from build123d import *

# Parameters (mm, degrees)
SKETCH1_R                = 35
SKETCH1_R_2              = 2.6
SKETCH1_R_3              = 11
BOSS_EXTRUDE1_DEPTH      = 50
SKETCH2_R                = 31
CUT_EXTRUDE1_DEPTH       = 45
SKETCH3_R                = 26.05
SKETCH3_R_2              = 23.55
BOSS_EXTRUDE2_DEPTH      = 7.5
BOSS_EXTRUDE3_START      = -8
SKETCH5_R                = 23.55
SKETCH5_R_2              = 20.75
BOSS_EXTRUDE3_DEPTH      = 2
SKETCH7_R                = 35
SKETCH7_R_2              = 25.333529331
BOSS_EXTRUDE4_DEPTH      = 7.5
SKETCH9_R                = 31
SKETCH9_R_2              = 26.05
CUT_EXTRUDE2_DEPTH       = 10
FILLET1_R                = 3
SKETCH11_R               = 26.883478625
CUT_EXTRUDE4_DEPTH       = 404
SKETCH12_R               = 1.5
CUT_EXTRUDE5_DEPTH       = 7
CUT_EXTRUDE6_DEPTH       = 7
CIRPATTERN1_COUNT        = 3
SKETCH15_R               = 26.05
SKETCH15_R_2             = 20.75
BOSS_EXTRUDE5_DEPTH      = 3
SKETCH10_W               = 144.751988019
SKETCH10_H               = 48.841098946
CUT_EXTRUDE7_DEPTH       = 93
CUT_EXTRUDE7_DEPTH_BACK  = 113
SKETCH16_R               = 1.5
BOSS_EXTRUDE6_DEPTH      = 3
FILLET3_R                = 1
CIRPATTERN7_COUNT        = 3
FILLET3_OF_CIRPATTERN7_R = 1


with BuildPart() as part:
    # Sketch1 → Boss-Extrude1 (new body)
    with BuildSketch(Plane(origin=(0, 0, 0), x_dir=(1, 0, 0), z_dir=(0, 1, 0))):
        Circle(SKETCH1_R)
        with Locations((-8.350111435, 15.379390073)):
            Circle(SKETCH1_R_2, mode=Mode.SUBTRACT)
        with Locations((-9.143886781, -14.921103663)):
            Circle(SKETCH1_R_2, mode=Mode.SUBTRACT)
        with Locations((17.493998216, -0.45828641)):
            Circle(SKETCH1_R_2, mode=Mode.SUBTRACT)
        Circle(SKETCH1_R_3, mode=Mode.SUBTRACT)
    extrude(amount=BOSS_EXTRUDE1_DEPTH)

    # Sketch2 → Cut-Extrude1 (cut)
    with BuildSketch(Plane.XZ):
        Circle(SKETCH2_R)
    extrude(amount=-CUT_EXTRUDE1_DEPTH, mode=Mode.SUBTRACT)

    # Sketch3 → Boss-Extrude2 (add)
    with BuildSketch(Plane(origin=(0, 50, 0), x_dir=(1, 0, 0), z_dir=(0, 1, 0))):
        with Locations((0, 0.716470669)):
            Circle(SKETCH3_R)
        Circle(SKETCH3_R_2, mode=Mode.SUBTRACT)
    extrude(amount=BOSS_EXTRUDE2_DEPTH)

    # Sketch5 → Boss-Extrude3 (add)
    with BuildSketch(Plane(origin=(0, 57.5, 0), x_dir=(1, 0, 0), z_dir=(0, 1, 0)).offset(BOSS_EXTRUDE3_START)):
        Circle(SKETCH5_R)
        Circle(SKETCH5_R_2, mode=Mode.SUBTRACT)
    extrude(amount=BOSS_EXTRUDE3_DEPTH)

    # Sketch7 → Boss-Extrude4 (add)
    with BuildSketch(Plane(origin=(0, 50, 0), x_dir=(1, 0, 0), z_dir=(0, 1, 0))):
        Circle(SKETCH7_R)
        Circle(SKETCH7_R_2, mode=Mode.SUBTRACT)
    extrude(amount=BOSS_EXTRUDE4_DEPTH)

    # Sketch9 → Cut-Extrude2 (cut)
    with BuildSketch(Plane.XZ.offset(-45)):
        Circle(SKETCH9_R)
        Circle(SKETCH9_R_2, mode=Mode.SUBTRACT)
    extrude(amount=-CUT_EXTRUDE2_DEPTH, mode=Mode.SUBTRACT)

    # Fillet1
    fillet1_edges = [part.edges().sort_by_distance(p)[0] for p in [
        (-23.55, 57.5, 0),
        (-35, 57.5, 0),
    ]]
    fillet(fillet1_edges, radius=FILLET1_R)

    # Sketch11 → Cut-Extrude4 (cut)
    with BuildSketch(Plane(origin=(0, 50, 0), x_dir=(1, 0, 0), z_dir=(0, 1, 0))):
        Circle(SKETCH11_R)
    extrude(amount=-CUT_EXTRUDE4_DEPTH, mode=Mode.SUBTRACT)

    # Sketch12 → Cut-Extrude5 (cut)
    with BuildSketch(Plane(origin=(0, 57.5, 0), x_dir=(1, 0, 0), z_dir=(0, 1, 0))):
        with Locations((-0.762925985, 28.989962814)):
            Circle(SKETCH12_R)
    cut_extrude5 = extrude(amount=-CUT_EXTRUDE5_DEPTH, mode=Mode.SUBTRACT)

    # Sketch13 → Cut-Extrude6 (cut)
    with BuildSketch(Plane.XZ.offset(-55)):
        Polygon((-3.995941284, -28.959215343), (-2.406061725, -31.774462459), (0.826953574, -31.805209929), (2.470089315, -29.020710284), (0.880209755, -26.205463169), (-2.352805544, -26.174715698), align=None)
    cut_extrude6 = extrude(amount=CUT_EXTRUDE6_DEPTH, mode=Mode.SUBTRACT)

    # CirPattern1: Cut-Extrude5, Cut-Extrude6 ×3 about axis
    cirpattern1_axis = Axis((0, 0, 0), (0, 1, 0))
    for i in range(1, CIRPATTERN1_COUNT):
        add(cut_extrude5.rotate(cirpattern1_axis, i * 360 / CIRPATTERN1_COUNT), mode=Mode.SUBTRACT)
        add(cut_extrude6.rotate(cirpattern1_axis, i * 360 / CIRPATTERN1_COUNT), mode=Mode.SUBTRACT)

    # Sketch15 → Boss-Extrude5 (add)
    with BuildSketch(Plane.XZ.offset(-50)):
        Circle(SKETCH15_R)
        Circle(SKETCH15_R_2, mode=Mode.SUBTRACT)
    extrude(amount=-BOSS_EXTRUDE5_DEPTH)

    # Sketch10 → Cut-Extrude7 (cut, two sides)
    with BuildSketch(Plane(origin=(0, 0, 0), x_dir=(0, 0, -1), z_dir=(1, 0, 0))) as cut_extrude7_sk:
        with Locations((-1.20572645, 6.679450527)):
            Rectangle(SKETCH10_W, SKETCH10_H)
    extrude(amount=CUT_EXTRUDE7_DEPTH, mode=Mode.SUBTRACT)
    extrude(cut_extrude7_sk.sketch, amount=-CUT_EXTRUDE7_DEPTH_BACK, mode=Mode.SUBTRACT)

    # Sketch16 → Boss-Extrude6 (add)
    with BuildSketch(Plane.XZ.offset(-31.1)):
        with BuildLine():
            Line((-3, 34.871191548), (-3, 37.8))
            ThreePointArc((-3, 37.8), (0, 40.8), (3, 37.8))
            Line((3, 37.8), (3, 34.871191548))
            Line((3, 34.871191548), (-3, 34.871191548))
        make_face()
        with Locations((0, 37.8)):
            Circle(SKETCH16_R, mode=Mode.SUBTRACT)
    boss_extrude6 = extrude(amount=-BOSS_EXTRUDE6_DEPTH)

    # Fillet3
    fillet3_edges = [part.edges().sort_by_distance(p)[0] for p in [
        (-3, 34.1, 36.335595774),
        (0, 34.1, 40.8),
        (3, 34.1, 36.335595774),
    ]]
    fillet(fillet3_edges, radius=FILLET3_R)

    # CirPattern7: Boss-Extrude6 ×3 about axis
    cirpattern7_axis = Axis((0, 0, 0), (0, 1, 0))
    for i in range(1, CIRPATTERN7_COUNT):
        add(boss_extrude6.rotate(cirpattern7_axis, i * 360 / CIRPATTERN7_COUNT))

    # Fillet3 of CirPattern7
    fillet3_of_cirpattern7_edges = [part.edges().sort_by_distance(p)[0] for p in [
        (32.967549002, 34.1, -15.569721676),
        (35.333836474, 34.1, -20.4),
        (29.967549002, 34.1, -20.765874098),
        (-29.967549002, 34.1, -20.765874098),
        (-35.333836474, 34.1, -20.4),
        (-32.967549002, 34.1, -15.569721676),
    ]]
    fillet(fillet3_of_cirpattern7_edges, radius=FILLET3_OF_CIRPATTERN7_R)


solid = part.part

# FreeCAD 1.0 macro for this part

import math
import FreeCAD as App
import Part
import Sketcher
Q = App.Units.Quantity


def edges_at(feature, points):
    """Names of the edges that pass closest to the given points."""
    edges = feature.Shape.Edges
    near = lambda p: min(range(len(edges)), key=lambda i: edges[i].distToShape(Part.Vertex(*p))[0])
    return sorted({f"Edge{near(p) + 1}" for p in points})

doc = App.newDocument("Part")
body = doc.addObject("PartDesign::Body", "Body")

sketch1 = doc.addObject("Sketcher::SketchObject", "Sketch")
body.addObject(sketch1)
sketch1.AttachmentSupport = (doc.XZ_Plane, [""])
sketch1.MapMode = "FlatFace"
sketch1.addGeometry(Part.Circle(App.Vector(0, 0, 0), App.Vector(0, 0, 1), 35), False)
sketch1.addGeometry(Part.Circle(App.Vector(-9.1, 14.9, 0), App.Vector(0, 0, 1), 2.6), False)
sketch1.addGeometry(Part.Circle(App.Vector(0, 0, 0), App.Vector(0, 0, 1), 11), False)
sketch1.addGeometry(Part.Circle(App.Vector(17.5, 0.5, 0), App.Vector(0, 0, 1), 2.6), False)
sketch1.addGeometry(Part.Circle(App.Vector(-8.4, -15.4, 0), App.Vector(0, 0, 1), 2.6), False)
sketch1.addConstraint(Sketcher.Constraint("Coincident", 0, 3, -1, 1))
sketch1.addConstraint(Sketcher.Constraint("Coincident", 2, 3, -1, 1))
sketch1.addConstraint(Sketcher.Constraint("Equal", 1, 3))
sketch1.addConstraint(Sketcher.Constraint("Equal", 3, 4))
sketch1.addConstraint(Sketcher.Constraint("Diameter", 0, Q("70 mm")))
sketch1.addConstraint(Sketcher.Constraint("Diameter", 2, Q("22 mm")))
sketch1.addConstraint(Sketcher.Constraint("Diameter", 1, Q("5.2 mm")))
sketch1.addConstraint(Sketcher.Constraint("DistanceX", -1, 1, 3, 3, Q("17.493998 mm")))
sketch1.addConstraint(Sketcher.Constraint("DistanceX", 4, 3, -1, 1, Q("8.350111 mm")))
sketch1.addConstraint(Sketcher.Constraint("DistanceY", 4, 3, -1, 1, Q("15.37939 mm")))
sketch1.addConstraint(Sketcher.Constraint("DistanceX", 1, 3, -1, 1, Q("9.143887 mm")))
sketch1.addConstraint(Sketcher.Constraint("DistanceY", -1, 1, 1, 3, Q("14.921104 mm")))
sketch1.addConstraint(Sketcher.Constraint("DistanceY", -1, 1, 3, 3, Q("0.458286 mm")))
pad1 = doc.addObject("PartDesign::Pad", "Pad")
body.addObject(pad1)
pad1.Profile = sketch1
pad1.Length = 50
pad1.Reversed = True

sketch2 = doc.addObject("Sketcher::SketchObject", "Sketch001")
body.addObject(sketch2)
sketch2.AttachmentSupport = (doc.XZ_Plane, [""])
sketch2.MapMode = "FlatFace"
sketch2.addGeometry(Part.Circle(App.Vector(0, 0, 0), App.Vector(0, 0, 1), 31), False)
sketch2.addConstraint(Sketcher.Constraint("Coincident", 0, 3, -1, 1))
sketch2.addConstraint(Sketcher.Constraint("Diameter", 0, Q("62 mm")))
pocket1 = doc.addObject("PartDesign::Pocket", "Pocket")
body.addObject(pocket1)
pocket1.Profile = sketch2
pocket1.Length = 45

sketch3 = doc.addObject("Sketcher::SketchObject", "Sketch002")
body.addObject(sketch3)
sketch3.AttachmentSupport = (doc.XZ_Plane, [""])
sketch3.MapMode = "FlatFace"
sketch3.AttachmentOffset = App.Placement(App.Vector(0, 0, -50), App.Rotation())
sketch3.addGeometry(Part.Circle(App.Vector(0, -1, 0), App.Vector(0, 0, 1), 26), False)
sketch3.addGeometry(Part.Circle(App.Vector(0, 0, 0), App.Vector(0, 0, 1), 24), False)
sketch3.addConstraint(Sketcher.Constraint("Coincident", 1, 3, -1, 1))
sketch3.addConstraint(Sketcher.Constraint("PointOnObject", 0, 3, -2))
sketch3.addConstraint(Sketcher.Constraint("Diameter", 0, Q("52.1 mm")))
sketch3.addConstraint(Sketcher.Constraint("Diameter", 1, Q("47.1 mm")))
sketch3.addConstraint(Sketcher.Constraint("DistanceY", 0, 3, -1, 1, Q("0.716471 mm")))
pad2 = doc.addObject("PartDesign::Pad", "Pad001")
body.addObject(pad2)
pad2.Profile = sketch3
pad2.Length = 7.5
pad2.Reversed = True

sketch4 = doc.addObject("Sketcher::SketchObject", "Sketch003")
body.addObject(sketch4)
sketch4.AttachmentSupport = (doc.XZ_Plane, [""])
sketch4.MapMode = "FlatFace"
sketch4.AttachmentOffset = App.Placement(App.Vector(0, 0, -49.5), App.Rotation())
sketch4.addGeometry(Part.Circle(App.Vector(0, 0, 0), App.Vector(0, 0, 1), 24), False)
sketch4.addGeometry(Part.Circle(App.Vector(0, 0, 0), App.Vector(0, 0, 1), 21), False)
sketch4.addConstraint(Sketcher.Constraint("Coincident", 0, 3, -1, 1))
sketch4.addConstraint(Sketcher.Constraint("Coincident", 1, 3, -1, 1))
sketch4.addConstraint(Sketcher.Constraint("Diameter", 0, Q("47.1 mm")))
sketch4.addConstraint(Sketcher.Constraint("Diameter", 1, Q("41.5 mm")))
pad3 = doc.addObject("PartDesign::Pad", "Pad002")
body.addObject(pad3)
pad3.Profile = sketch4
pad3.Length = 2
pad3.Reversed = True

sketch5 = doc.addObject("Sketcher::SketchObject", "Sketch004")
body.addObject(sketch5)
sketch5.AttachmentSupport = (doc.XZ_Plane, [""])
sketch5.MapMode = "FlatFace"
sketch5.AttachmentOffset = App.Placement(App.Vector(0, 0, -50), App.Rotation())
sketch5.addGeometry(Part.Circle(App.Vector(0, 0, 0), App.Vector(0, 0, 1), 35), False)
sketch5.addGeometry(Part.Circle(App.Vector(0, 0, 0), App.Vector(0, 0, 1), 25), False)
sketch5.addConstraint(Sketcher.Constraint("Coincident", 0, 3, -1, 1))
sketch5.addConstraint(Sketcher.Constraint("Coincident", 1, 3, -1, 1))
sketch5.addConstraint(Sketcher.Constraint("Diameter", 0, Q("70 mm")))
sketch5.addConstraint(Sketcher.Constraint("Diameter", 1, Q("50.667059 mm")))
pad4 = doc.addObject("PartDesign::Pad", "Pad003")
body.addObject(pad4)
pad4.Profile = sketch5
pad4.Length = 7.5
pad4.Reversed = True

sketch6 = doc.addObject("Sketcher::SketchObject", "Sketch005")
body.addObject(sketch6)
sketch6.AttachmentSupport = (doc.XZ_Plane, [""])
sketch6.MapMode = "FlatFace"
sketch6.AttachmentOffset = App.Placement(App.Vector(0, 0, -45), App.Rotation())
sketch6.addGeometry(Part.Circle(App.Vector(0, 0, 0), App.Vector(0, 0, 1), 31), False)
sketch6.addGeometry(Part.Circle(App.Vector(0, 0, 0), App.Vector(0, 0, 1), 26), False)
sketch6.addConstraint(Sketcher.Constraint("Coincident", 0, 3, -1, 1))
sketch6.addConstraint(Sketcher.Constraint("Coincident", 1, 3, -1, 1))
sketch6.addConstraint(Sketcher.Constraint("Diameter", 0, Q("62 mm")))
sketch6.addConstraint(Sketcher.Constraint("Diameter", 1, Q("52.1 mm")))
pocket2 = doc.addObject("PartDesign::Pocket", "Pocket001")
body.addObject(pocket2)
pocket2.Profile = sketch6
pocket2.Length = 10
doc.recompute()

fillet = doc.addObject("PartDesign::Fillet", "Fillet")
body.addObject(fillet)
fillet.Base = (pocket2, edges_at(pocket2, [(-23.55, 57.5, 0), (-35, 57.5, 0)]))
fillet.Radius = 3

sketch7 = doc.addObject("Sketcher::SketchObject", "Sketch006")
body.addObject(sketch7)
sketch7.AttachmentSupport = (doc.XZ_Plane, [""])
sketch7.MapMode = "FlatFace"
sketch7.AttachmentOffset = App.Placement(App.Vector(0, 0, -50), App.Rotation())
sketch7.addGeometry(Part.Circle(App.Vector(0, 0, 0), App.Vector(0, 0, 1), 27), False)
sketch7.addConstraint(Sketcher.Constraint("Coincident", 0, 3, -1, 1))
sketch7.addConstraint(Sketcher.Constraint("Diameter", 0, Q("53.766957 mm")))
pocket3 = doc.addObject("PartDesign::Pocket", "Pocket002")
body.addObject(pocket3)
pocket3.Profile = sketch7
pocket3.Length = 404
pocket3.Reversed = True

sketch8 = doc.addObject("Sketcher::SketchObject", "Sketch007")
body.addObject(sketch8)
sketch8.AttachmentSupport = (doc.XZ_Plane, [""])
sketch8.MapMode = "FlatFace"
sketch8.AttachmentOffset = App.Placement(App.Vector(0, 0, -57.5), App.Rotation())
sketch8.addGeometry(Part.Circle(App.Vector(-0.8, -29, 0), App.Vector(0, 0, 1), 1.5), False)
sketch8.addConstraint(Sketcher.Constraint("Diameter", 0, Q("3 mm")))
sketch8.addConstraint(Sketcher.Constraint("DistanceX", 0, 3, -1, 1, Q("0.762926 mm")))
sketch8.addConstraint(Sketcher.Constraint("DistanceY", 0, 3, -1, 1, Q("28.989963 mm")))
pocket4 = doc.addObject("PartDesign::Pocket", "Pocket003")
body.addObject(pocket4)
pocket4.Profile = sketch8
pocket4.Length = 7
pocket4.Reversed = True

sketch9 = doc.addObject("Sketcher::SketchObject", "Sketch008")
body.addObject(sketch9)
sketch9.AttachmentSupport = (doc.XZ_Plane, [""])
sketch9.MapMode = "FlatFace"
sketch9.AttachmentOffset = App.Placement(App.Vector(0, 0, -55), App.Rotation())
sketch9.addGeometry(Part.LineSegment(App.Vector(-4, -29, 0), App.Vector(-2.4, -31.8, 0)), False)
sketch9.addGeometry(Part.LineSegment(App.Vector(-2.4, -31.8, 0), App.Vector(0.8, -31.8, 0)), False)
sketch9.addGeometry(Part.LineSegment(App.Vector(0.8, -31.8, 0), App.Vector(2.5, -29, 0)), False)
sketch9.addGeometry(Part.LineSegment(App.Vector(2.5, -29, 0), App.Vector(0.9, -26.2, 0)), False)
sketch9.addGeometry(Part.LineSegment(App.Vector(0.9, -26.2, 0), App.Vector(-2.4, -26.2, 0)), False)
sketch9.addGeometry(Part.LineSegment(App.Vector(-2.4, -26.2, 0), App.Vector(-4, -29, 0)), False)
sketch9.addConstraint(Sketcher.Constraint("Coincident", 0, 2, 1, 1))
sketch9.addConstraint(Sketcher.Constraint("Coincident", 1, 2, 2, 1))
sketch9.addConstraint(Sketcher.Constraint("Coincident", 2, 2, 3, 1))
sketch9.addConstraint(Sketcher.Constraint("Coincident", 3, 2, 4, 1))
sketch9.addConstraint(Sketcher.Constraint("Coincident", 4, 2, 5, 1))
sketch9.addConstraint(Sketcher.Constraint("Coincident", 5, 2, 0, 1))
sketch9.addConstraint(Sketcher.Constraint("Parallel", 0, 3))
sketch9.addConstraint(Sketcher.Constraint("Parallel", 1, 4))
sketch9.addConstraint(Sketcher.Constraint("Parallel", 2, 5))
sketch9.addConstraint(Sketcher.Constraint("Equal", 0, 1))
sketch9.addConstraint(Sketcher.Constraint("Equal", 1, 2))
sketch9.addConstraint(Sketcher.Constraint("Equal", 2, 3))
sketch9.addConstraint(Sketcher.Constraint("DistanceY", 0, 2, 3, 2, Q("5.568999 mm")))
sketch9.addConstraint(Sketcher.Constraint("DistanceY", 1, 2, 2, 2, Q("2.7845 mm")))
sketch9.addConstraint(Sketcher.Constraint("Distance", 0, Q("3.233162 mm")))
sketch9.addConstraint(Sketcher.Constraint("DistanceX", 0, 2, -1, 1, Q("2.406062 mm")))
sketch9.addConstraint(Sketcher.Constraint("DistanceY", 1, 2, -1, 1, Q("31.80521 mm")))
sketch9.addConstraint(Sketcher.Constraint("DistanceX", -1, 1, 3, 2, Q("0.88021 mm")))
pocket5 = doc.addObject("PartDesign::Pocket", "Pocket004")
body.addObject(pocket5)
pocket5.Profile = sketch9
pocket5.Length = 7
pocket5.Reversed = True
doc.recompute()

polarpattern = doc.addObject("PartDesign::PolarPattern", "PolarPattern")
body.addObject(polarpattern)
polarpattern.Originals = [pocket4, pocket5]
polarpattern.Axis = (doc.Y_Axis, [""])
polarpattern.Angle = 360
polarpattern.Occurrences = 3
body.Tip = polarpattern

sketch10 = doc.addObject("Sketcher::SketchObject", "Sketch009")
body.addObject(sketch10)
sketch10.AttachmentSupport = (doc.XZ_Plane, [""])
sketch10.MapMode = "FlatFace"
sketch10.AttachmentOffset = App.Placement(App.Vector(0, 0, -50), App.Rotation())
sketch10.addGeometry(Part.Circle(App.Vector(0, 0, 0), App.Vector(0, 0, 1), 26), False)
sketch10.addGeometry(Part.Circle(App.Vector(0, 0, 0), App.Vector(0, 0, 1), 21), False)
sketch10.addConstraint(Sketcher.Constraint("Coincident", 0, 3, -1, 1))
sketch10.addConstraint(Sketcher.Constraint("Coincident", 1, 3, -1, 1))
sketch10.addConstraint(Sketcher.Constraint("Diameter", 0, Q("52.1 mm")))
sketch10.addConstraint(Sketcher.Constraint("Diameter", 1, Q("41.5 mm")))
pad5 = doc.addObject("PartDesign::Pad", "Pad004")
body.addObject(pad5)
pad5.Profile = sketch10
pad5.Length = 3
pad5.Reversed = True

sketch11 = doc.addObject("Sketcher::SketchObject", "Sketch010")
body.addObject(sketch11)
sketch11.AttachmentSupport = (doc.YZ_Plane, [""])
sketch11.MapMode = "FlatFace"
sketch11.addGeometry(Part.LineSegment(App.Vector(31, 74, 0), App.Vector(-18, 74, 0)), False)
sketch11.addGeometry(Part.LineSegment(App.Vector(-18, 74, 0), App.Vector(-18, -71, 0)), False)
sketch11.addGeometry(Part.LineSegment(App.Vector(-18, -71, 0), App.Vector(31, -71, 0)), False)
sketch11.addGeometry(Part.LineSegment(App.Vector(31, -71, 0), App.Vector(31, 74, 0)), False)
sketch11.addConstraint(Sketcher.Constraint("Coincident", 0, 2, 1, 1))
sketch11.addConstraint(Sketcher.Constraint("Coincident", 1, 2, 2, 1))
sketch11.addConstraint(Sketcher.Constraint("Coincident", 2, 2, 3, 1))
sketch11.addConstraint(Sketcher.Constraint("Coincident", 3, 2, 0, 1))
sketch11.addConstraint(Sketcher.Constraint("Horizontal", 0))
sketch11.addConstraint(Sketcher.Constraint("Vertical", 1))
sketch11.addConstraint(Sketcher.Constraint("Horizontal", 2))
sketch11.addConstraint(Sketcher.Constraint("Vertical", 3))
sketch11.addConstraint(Sketcher.Constraint("DistanceX", -1, 1, 2, 2, Q("31.1 mm")))
sketch11.addConstraint(Sketcher.Constraint("DistanceX", 0, 2, 0, 1, Q("48.841099 mm")))
sketch11.addConstraint(Sketcher.Constraint("DistanceY", 1, 2, 1, 1, Q("144.751988 mm")))
sketch11.addConstraint(Sketcher.Constraint("DistanceY", -1, 1, 0, 2, Q("73.58172 mm")))
pocket6 = doc.addObject("PartDesign::Pocket", "Pocket005")
body.addObject(pocket6)
pocket6.Profile = sketch11
pocket6.Type = "ThroughAll"
pocket6.Midplane = True

sketch12 = doc.addObject("Sketcher::SketchObject", "Sketch011")
body.addObject(sketch12)
sketch12.AttachmentSupport = (doc.XZ_Plane, [""])
sketch12.MapMode = "FlatFace"
sketch12.AttachmentOffset = App.Placement(App.Vector(0, 0, -31.1), App.Rotation())
sketch12.addGeometry(Part.LineSegment(App.Vector(-3, 37.8, 0), App.Vector(-3, 34.9, 0)), False)
sketch12.addGeometry(Part.LineSegment(App.Vector(-3, 34.9, 0), App.Vector(3, 34.9, 0)), False)
sketch12.addGeometry(Part.LineSegment(App.Vector(3, 34.9, 0), App.Vector(3, 37.8, 0)), False)
sketch12.addGeometry(Part.ArcOfCircle(Part.Circle(App.Vector(0, 37.8, 0), App.Vector(0, 0, 1), 3), math.radians(0), math.radians(180)), False)
sketch12.addGeometry(Part.Circle(App.Vector(0, 37.8, 0), App.Vector(0, 0, 1), 1.5), False)
sketch12.addConstraint(Sketcher.Constraint("Coincident", 0, 2, 1, 1))
sketch12.addConstraint(Sketcher.Constraint("Coincident", 1, 2, 2, 1))
sketch12.addConstraint(Sketcher.Constraint("Tangent", 2, 2, 3, 1))
sketch12.addConstraint(Sketcher.Constraint("Tangent", 3, 2, 0, 1))
sketch12.addConstraint(Sketcher.Constraint("Vertical", 0))
sketch12.addConstraint(Sketcher.Constraint("Horizontal", 1))
sketch12.addConstraint(Sketcher.Constraint("Vertical", 2))
sketch12.addConstraint(Sketcher.Constraint("Coincident", 4, 3, 3, 3))
sketch12.addConstraint(Sketcher.Constraint("PointOnObject", 3, 3, -2))
sketch12.addConstraint(Sketcher.Constraint("Diameter", 4, Q("3 mm")))
sketch12.addConstraint(Sketcher.Constraint("Radius", 3, Q("3 mm")))
sketch12.addConstraint(Sketcher.Constraint("DistanceY", -1, 1, 3, 3, Q("37.8 mm")))
sketch12.addConstraint(Sketcher.Constraint("DistanceY", 0, 2, 0, 1, Q("2.928808 mm")))
pad6 = doc.addObject("PartDesign::Pad", "Pad005")
body.addObject(pad6)
pad6.Profile = sketch12
pad6.Length = 3
pad6.Reversed = True
doc.recompute()

fillet2 = doc.addObject("PartDesign::Fillet", "Fillet001")
body.addObject(fillet2)
fillet2.Base = (pad6, edges_at(pad6, [(-3, 34.1, 36.336), (0, 34.1, 40.8), (3, 34.1, 36.336)]))
fillet2.Radius = 1
doc.recompute()

polarpattern2 = doc.addObject("PartDesign::PolarPattern", "PolarPattern001")
body.addObject(polarpattern2)
polarpattern2.Originals = [pad6]
polarpattern2.Axis = (doc.Y_Axis, [""])
polarpattern2.Angle = 360
polarpattern2.Occurrences = 3
body.Tip = polarpattern2
doc.recompute()

fillet3 = doc.addObject("PartDesign::Fillet", "Fillet002")
body.addObject(fillet3)
fillet3.Base = (polarpattern2, edges_at(polarpattern2, [
    (32.968, 34.1, -15.57),
    (35.334, 34.1, -20.4),
    (29.968, 34.1, -20.766),
    (-29.968, 34.1, -20.766),
    (-35.334, 34.1, -20.4),
    (-32.968, 34.1, -15.57),
]))
fillet3.Radius = 1

doc.recompute()
